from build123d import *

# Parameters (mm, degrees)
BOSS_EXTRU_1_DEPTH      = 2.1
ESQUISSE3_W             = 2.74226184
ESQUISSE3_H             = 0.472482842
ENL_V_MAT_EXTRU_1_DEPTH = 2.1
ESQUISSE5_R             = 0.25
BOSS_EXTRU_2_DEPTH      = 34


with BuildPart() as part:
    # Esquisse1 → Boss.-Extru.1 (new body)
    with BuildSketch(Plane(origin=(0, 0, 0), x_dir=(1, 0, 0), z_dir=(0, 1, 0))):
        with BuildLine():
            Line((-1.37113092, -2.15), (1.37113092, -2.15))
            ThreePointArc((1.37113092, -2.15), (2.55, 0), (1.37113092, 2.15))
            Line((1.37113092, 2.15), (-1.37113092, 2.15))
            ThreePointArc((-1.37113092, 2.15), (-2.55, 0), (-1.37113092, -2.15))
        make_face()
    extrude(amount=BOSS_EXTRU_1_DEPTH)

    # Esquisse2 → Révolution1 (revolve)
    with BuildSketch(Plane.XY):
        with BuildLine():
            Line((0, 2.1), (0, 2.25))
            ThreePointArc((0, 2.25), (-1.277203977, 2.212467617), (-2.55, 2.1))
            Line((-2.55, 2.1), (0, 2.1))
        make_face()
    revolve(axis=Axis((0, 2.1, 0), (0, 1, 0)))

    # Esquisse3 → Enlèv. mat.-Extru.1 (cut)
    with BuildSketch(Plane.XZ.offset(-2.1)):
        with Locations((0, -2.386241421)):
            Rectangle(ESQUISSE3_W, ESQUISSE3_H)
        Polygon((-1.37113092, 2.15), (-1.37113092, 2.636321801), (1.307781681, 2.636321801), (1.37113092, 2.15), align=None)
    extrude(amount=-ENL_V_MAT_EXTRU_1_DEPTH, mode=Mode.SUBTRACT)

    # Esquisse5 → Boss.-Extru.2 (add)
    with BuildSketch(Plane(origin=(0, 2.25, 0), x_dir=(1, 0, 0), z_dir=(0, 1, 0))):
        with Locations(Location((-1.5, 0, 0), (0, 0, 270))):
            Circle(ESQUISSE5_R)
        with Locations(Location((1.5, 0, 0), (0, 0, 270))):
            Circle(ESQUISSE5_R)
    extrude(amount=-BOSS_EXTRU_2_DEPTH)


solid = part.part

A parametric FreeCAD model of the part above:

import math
import FreeCAD as App
import Part
import Sketcher


def add_polygon(sketch, points):
    """Adds a closed chain of lines whose ends are joined by coincident constraints."""
    first, n = sketch.GeometryCount, len(points)
    for a, b in zip(points, points[1:] + points[:1]):
        sketch.addGeometry(Part.LineSegment(App.Vector(*a, 0), App.Vector(*b, 0)), False)
    for i in range(n):
        sketch.addConstraint(Sketcher.Constraint("Coincident", first + i, 2, first + (i + 1) % n, 1))

doc = App.newDocument("Part")
params = doc.addObject("Spreadsheet::Sheet", "Params")
for row, (alias, value) in enumerate([
    ("sketch1_radius", "2.55 mm"),
    ("pad1_length", "2.1 mm"),
    ("sketch2_radius", "21.75 mm"),
    ("sketch2_width", "2.55 mm"),
    ("revolution_angle", "360 deg"),
    ("pocket1_length", "2.1 mm"),
    ("sketch4_diameter", "0.5 mm"),
    ("pad2_length", "34 mm"),
], start=1):
    params.set(f"A{row}", alias)
    params.set(f"B{row}", "=" + value)
    params.setAlias(f"B{row}", alias)

body = doc.addObject("PartDesign::Body", "Body")

sketch1 = doc.addObject("Sketcher::SketchObject", "Sketch")
body.addObject(sketch1)
sketch1.AttachmentSupport = (doc.XZ_Plane, [""])
sketch1.MapMode = "FlatFace"
sketch1.addGeometry(Part.LineSegment(App.Vector(-1.4, 2.1, 0), App.Vector(1.4, 2.1, 0)), False)
sketch1.addGeometry(Part.ArcOfCircle(Part.Circle(App.Vector(0, 0, 0), App.Vector(0, 0, 1), 2.5), math.radians(-57), math.radians(57)), False)
sketch1.addGeometry(Part.LineSegment(App.Vector(1.4, -2.1, 0), App.Vector(-1.4, -2.1, 0)), False)
sketch1.addGeometry(Part.ArcOfCircle(Part.Circle(App.Vector(0, 0, 0), App.Vector(0, 0, 1), 2.5), math.radians(123), math.radians(237)), False)
sketch1.addConstraint(Sketcher.Constraint("Coincident", 0, 2, 1, 2))
sketch1.addConstraint(Sketcher.Constraint("Coincident", 1, 1, 2, 1))
sketch1.addConstraint(Sketcher.Constraint("Coincident", 2, 2, 3, 2))
sketch1.addConstraint(Sketcher.Constraint("Coincident", 3, 1, 0, 1))
sketch1.addConstraint(Sketcher.Constraint("Horizontal", 0))
sketch1.addConstraint(Sketcher.Constraint("Horizontal", 2))
sketch1.addConstraint(Sketcher.Constraint("Coincident", 1, 3, -1, 1))
sketch1.addConstraint(Sketcher.Constraint("Coincident", 3, 3, -1, 1))
sketch1.addConstraint(Sketcher.Constraint("Equal", 1, 3))
sketch1.addConstraint(Sketcher.Constraint("Vertical", 0, 2, 1, 1))
sketch1.addConstraint(Sketcher.Constraint("Radius", 1, 2.55))
sketch1.addConstraint(Sketcher.Constraint("DistanceY", 1, 1, 0, 2, 4.3))
sketch1.setExpression("Constraints[10]", "Params.sketch1_radius")
pad1 = doc.addObject("PartDesign::Pad", "Pad")
body.addObject(pad1)
pad1.Profile = sketch1
pad1.setExpression("Length", "Params.pad1_length")
pad1.Reversed = True

sketch2 = doc.addObject("Sketcher::SketchObject", "Sketch001")
body.addObject(sketch2)
sketch2.AttachmentSupport = (doc.XY_Plane, [""])
sketch2.MapMode = "FlatFace"
sketch2.addGeometry(Part.LineSegment(App.Vector(0, 2.1, 0), App.Vector(0, 2.25, 0)), False)
sketch2.addGeometry(Part.ArcOfCircle(Part.Circle(App.Vector(0, -19.5, 0), App.Vector(0, 0, 1), 21.75), math.radians(90), math.radians(96.73)), False)
sketch2.addGeometry(Part.LineSegment(App.Vector(-2.55, 2.1, 0), App.Vector(0, 2.1, 0)), False)
sketch2.addConstraint(Sketcher.Constraint("Coincident", 0, 2, 1, 1))
sketch2.addConstraint(Sketcher.Constraint("Coincident", 1, 2, 2, 1))
sketch2.addConstraint(Sketcher.Constraint("Coincident", 2, 2, 0, 1))
sketch2.addConstraint(Sketcher.Constraint("Vertical", 0))
sketch2.addConstraint(Sketcher.Constraint("Horizontal", 2))
sketch2.addConstraint(Sketcher.Constraint("PointOnObject", 1, 3, -2))
sketch2.addConstraint(Sketcher.Constraint("PointOnObject", 0, 2, -2))
sketch2.addConstraint(Sketcher.Constraint("Radius", 1, 21.75))
sketch2.addConstraint(Sketcher.Constraint("DistanceX", 2, 1, 2, 2, 2.55))
sketch2.addConstraint(Sketcher.Constraint("DistanceY", 1, 3, -1, 1, 19.5))
sketch2.setExpression("Constraints[7]", "Params.sketch2_radius")
sketch2.setExpression("Constraints[8]", "Params.sketch2_width")
revolution = doc.addObject("PartDesign::Revolution", "Revolution")
body.addObject(revolution)
revolution.Profile = sketch2
revolution.ReferenceAxis = (sketch2, ["V_Axis"])
revolution.setExpression("Angle", "Params.revolution_angle")

sketch3 = doc.addObject("Sketcher::SketchObject", "Sketch002")
body.addObject(sketch3)
sketch3.AttachmentSupport = (doc.XZ_Plane, [""])
sketch3.MapMode = "FlatFace"
sketch3.AttachmentOffset = App.Placement(App.Vector(0, 0, -2.1), App.Rotation())
add_polygon(sketch3, [(-1.37, -2.15), (-1.37, -2.62), (1.37, -2.62), (1.37, -2.15)])
add_polygon(sketch3, [(-1.37, 2.64), (-1.37, 2.15), (1.37, 2.15), (1.31, 2.64)])
sketch3.addConstraint(Sketcher.Constraint("Vertical", 0))
sketch3.addConstraint(Sketcher.Constraint("Horizontal", 1))
sketch3.addConstraint(Sketcher.Constraint("Vertical", 2))
sketch3.addConstraint(Sketcher.Constraint("Horizontal", 3))
sketch3.addConstraint(Sketcher.Constraint("Vertical", 4))
sketch3.addConstraint(Sketcher.Constraint("Horizontal", 5))
sketch3.addConstraint(Sketcher.Constraint("Horizontal", 7))
sketch3.addConstraint(Sketcher.Constraint("Symmetric", 2, 2, 4, 2, -1, 1))
sketch3.addConstraint(Sketcher.Constraint("Vertical", 3, 2, 4, 2))
sketch3.addConstraint(Sketcher.Constraint("Vertical", 2, 2, 5, 2))
sketch3.addConstraint(Sketcher.Constraint("DistanceY", 3, 2, 4, 2, 4.3))
sketch3.addConstraint(Sketcher.Constraint("DistanceX", 1, 1, 1, 2, 2.742262))
sketch3.addConstraint(Sketcher.Constraint("DistanceY", 4, 2, 4, 1, 0.486322))
sketch3.addConstraint(Sketcher.Constraint("Distance", 6, 0.49043))
sketch3.addConstraint(Sketcher.Constraint("DistanceY", 0, 2, 0, 1, 0.472483))
pocket1 = doc.addObject("PartDesign::Pocket", "Pocket")
body.addObject(pocket1)
pocket1.Profile = sketch3
pocket1.setExpression("Length", "Params.pocket1_length")

sketch4 = doc.addObject("Sketcher::SketchObject", "Sketch003")
body.addObject(sketch4)
sketch4.AttachmentSupport = (doc.XZ_Plane, [""])
sketch4.MapMode = "FlatFace"
sketch4.AttachmentOffset = App.Placement(App.Vector(0, 0, -2.25), App.Rotation())
sketch4.addGeometry(Part.Circle(App.Vector(-1.5, 0, 0), App.Vector(0, 0, 1), 0.25), False)
sketch4.addGeometry(Part.Circle(App.Vector(1.5, 0, 0), App.Vector(0, 0, 1), 0.25), False)
sketch4.addConstraint(Sketcher.Constraint("Equal", 0, 1))
sketch4.addConstraint(Sketcher.Constraint("Symmetric", 0, 3, 1, 3, -1, 1))
sketch4.addConstraint(Sketcher.Constraint("PointOnObject", 0, 3, -1))
sketch4.addConstraint(Sketcher.Constraint("Diameter", 0, 0.5))
sketch4.addConstraint(Sketcher.Constraint("DistanceX", 0, 3, 1, 3, 3.0))
sketch4.setExpression("Constraints[3]", "Params.sketch4_diameter")
pad2 = doc.addObject("PartDesign::Pad", "Pad001")
body.addObject(pad2)
pad2.Profile = sketch4
pad2.setExpression("Length", "Params.pad2_length")

doc.recompute()
